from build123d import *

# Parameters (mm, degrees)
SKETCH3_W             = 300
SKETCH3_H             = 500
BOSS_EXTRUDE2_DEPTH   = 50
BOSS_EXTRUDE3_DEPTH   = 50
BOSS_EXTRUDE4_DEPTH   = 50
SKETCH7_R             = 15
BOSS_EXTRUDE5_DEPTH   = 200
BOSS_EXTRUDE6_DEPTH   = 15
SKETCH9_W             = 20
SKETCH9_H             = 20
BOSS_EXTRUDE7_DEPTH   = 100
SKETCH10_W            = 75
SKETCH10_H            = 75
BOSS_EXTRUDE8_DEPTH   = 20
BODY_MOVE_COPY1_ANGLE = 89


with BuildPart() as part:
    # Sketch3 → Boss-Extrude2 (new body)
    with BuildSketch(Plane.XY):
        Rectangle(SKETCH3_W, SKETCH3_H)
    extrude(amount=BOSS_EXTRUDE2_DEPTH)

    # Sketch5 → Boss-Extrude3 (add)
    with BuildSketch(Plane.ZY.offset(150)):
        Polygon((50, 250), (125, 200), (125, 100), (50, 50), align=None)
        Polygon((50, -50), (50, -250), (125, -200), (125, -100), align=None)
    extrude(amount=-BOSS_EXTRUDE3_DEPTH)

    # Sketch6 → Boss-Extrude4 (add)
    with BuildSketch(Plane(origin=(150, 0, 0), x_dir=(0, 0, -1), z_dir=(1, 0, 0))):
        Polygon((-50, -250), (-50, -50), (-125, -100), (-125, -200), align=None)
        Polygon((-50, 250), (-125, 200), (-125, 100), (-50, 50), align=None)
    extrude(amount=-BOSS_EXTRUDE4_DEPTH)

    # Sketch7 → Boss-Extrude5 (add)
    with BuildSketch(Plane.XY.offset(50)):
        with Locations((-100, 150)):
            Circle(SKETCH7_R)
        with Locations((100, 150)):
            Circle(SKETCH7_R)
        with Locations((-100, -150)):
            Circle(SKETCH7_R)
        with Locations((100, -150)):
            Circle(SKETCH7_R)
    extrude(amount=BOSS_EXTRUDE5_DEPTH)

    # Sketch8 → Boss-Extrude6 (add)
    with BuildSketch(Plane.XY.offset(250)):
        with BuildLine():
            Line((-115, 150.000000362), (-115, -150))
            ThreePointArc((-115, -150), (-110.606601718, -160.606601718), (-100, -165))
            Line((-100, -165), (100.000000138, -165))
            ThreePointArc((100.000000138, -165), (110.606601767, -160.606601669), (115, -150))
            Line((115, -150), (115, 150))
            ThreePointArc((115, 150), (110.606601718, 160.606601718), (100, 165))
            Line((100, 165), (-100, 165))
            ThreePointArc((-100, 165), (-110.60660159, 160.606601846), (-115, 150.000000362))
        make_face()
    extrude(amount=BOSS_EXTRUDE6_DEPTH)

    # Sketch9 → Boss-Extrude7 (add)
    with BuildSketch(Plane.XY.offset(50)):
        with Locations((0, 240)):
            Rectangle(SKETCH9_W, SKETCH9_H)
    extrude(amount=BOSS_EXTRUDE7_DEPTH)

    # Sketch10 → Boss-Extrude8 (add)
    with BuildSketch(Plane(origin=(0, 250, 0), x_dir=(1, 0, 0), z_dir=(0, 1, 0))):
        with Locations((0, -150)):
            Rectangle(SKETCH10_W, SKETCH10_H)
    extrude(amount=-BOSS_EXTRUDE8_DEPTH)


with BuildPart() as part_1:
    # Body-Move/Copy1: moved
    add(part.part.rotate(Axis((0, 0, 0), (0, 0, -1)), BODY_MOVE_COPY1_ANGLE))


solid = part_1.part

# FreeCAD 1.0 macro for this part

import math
import FreeCAD as App
import Part
import Sketcher

doc = App.newDocument("Part")
params = doc.addObject("Spreadsheet::Sheet", "Params")
for row, (alias, value) in enumerate([
    ("sketch1_width", "300 mm"),
    ("sketch1_height", "500 mm"),
    ("pad1_length", "50 mm"),
    ("sketch2_width", "200 mm"),
    ("sketch2_width2", "100 mm"),
    ("pad2_length", "50 mm"),
    ("sketch3_width", "200 mm"),
    ("sketch3_width2", "100 mm"),
    ("pad3_length", "50 mm"),
    ("sketch4_diameter", "30 mm"),
    ("pad4_length", "200 mm"),
    ("sketch5_radius", "15 mm"),
    ("sketch5_width", "200 mm"),
    ("sketch5_height", "300 mm"),
    ("pad5_length", "15 mm"),
    ("sketch6_width", "20 mm"),
    ("pad6_length", "100 mm"),
    ("sketch7_width", "75 mm"),
    ("pad7_length", "20 mm"),
], start=1):
    params.set(f"A{row}", alias)
    params.set(f"B{row}", "=" + value)
    params.setAlias(f"B{row}", alias)

body = doc.addObject("PartDesign::Body", "Body")

# Sketch on XY plane
sketch1 = body.newObject("Sketcher::SketchObject", "Sketch")
sketch1.AttachmentSupport = (doc.getObject("XY_Plane"), [""])
sketch1.MapMode = "FlatFace"
sketch1.addGeometry(Part.LineSegment(App.Vector(-150, 250, 0), App.Vector(-150, -250, 0)), False)
sketch1.addGeometry(Part.LineSegment(App.Vector(-150, -250, 0), App.Vector(150, -250, 0)), False)
sketch1.addGeometry(Part.LineSegment(App.Vector(150, -250, 0), App.Vector(150, 250, 0)), False)
sketch1.addGeometry(Part.LineSegment(App.Vector(150, 250, 0), App.Vector(-150, 250, 0)), False)
sketch1.addConstraint(Sketcher.Constraint("Coincident", 0, 2, 1, 1))
sketch1.addConstraint(Sketcher.Constraint("Coincident", 1, 2, 2, 1))
sketch1.addConstraint(Sketcher.Constraint("Coincident", 2, 2, 3, 1))
sketch1.addConstraint(Sketcher.Constraint("Coincident", 3, 2, 0, 1))
sketch1.addConstraint(Sketcher.Constraint("Vertical", 0))
sketch1.addConstraint(Sketcher.Constraint("Horizontal", 1))
sketch1.addConstraint(Sketcher.Constraint("Vertical", 2))
sketch1.addConstraint(Sketcher.Constraint("Horizontal", 3))
sketch1.addConstraint(Sketcher.Constraint("Symmetric", 0, 2, 2, 2, -1, 1))
sketch1.addConstraint(Sketcher.Constraint("DistanceX", 1, 1, 1, 2, 300.0))
sketch1.addConstraint(Sketcher.Constraint("DistanceY", 0, 2, 0, 1, 500.0))
sketch1.setExpression("Constraints[9]", "Params.sketch1_width")
sketch1.setExpression("Constraints[10]", "Params.sketch1_height")
pad1 = body.newObject("PartDesign::Pad", "Pad")
pad1.Profile = sketch1
pad1.setExpression("Length", "Params.pad1_length")

# Sketch on YZ plane
sketch2 = body.newObject("Sketcher::SketchObject", "Sketch001")
sketch2.AttachmentSupport = (doc.getObject("YZ_Plane"), [""])
sketch2.MapMode = "FlatFace"
sketch2.AttachmentOffset = App.Placement(App.Vector(0, 0, -150), App.Rotation())
sketch2.addGeometry(Part.LineSegment(App.Vector(200, 125, 0), App.Vector(250, 50, 0)), False)
sketch2.addGeometry(Part.LineSegment(App.Vector(250, 50, 0), App.Vector(50, 50, 0)), False)
sketch2.addGeometry(Part.LineSegment(App.Vector(50, 50, 0), App.Vector(100, 125, 0)), False)
sketch2.addGeometry(Part.LineSegment(App.Vector(100, 125, 0), App.Vector(200, 125, 0)), False)
sketch2.addGeometry(Part.LineSegment(App.Vector(-50, 50, 0), App.Vector(-250, 50, 0)), False)
sketch2.addGeometry(Part.LineSegment(App.Vector(-250, 50, 0), App.Vector(-200, 125, 0)), False)
sketch2.addGeometry(Part.LineSegment(App.Vector(-200, 125, 0), App.Vector(-100, 125, 0)), False)
sketch2.addGeometry(Part.LineSegment(App.Vector(-100, 125, 0), App.Vector(-50, 50, 0)), False)
sketch2.addConstraint(Sketcher.Constraint("Coincident", 0, 2, 1, 1))
sketch2.addConstraint(Sketcher.Constraint("Coincident", 1, 2, 2, 1))
sketch2.addConstraint(Sketcher.Constraint("Coincident", 2, 2, 3, 1))
sketch2.addConstraint(Sketcher.Constraint("Coincident", 3, 2, 0, 1))
sketch2.addConstraint(Sketcher.Constraint("Coincident", 4, 2, 5, 1))
sketch2.addConstraint(Sketcher.Constraint("Coincident", 5, 2, 6, 1))
sketch2.addConstraint(Sketcher.Constraint("Coincident", 6, 2, 7, 1))
sketch2.addConstraint(Sketcher.Constraint("Coincident", 7, 2, 4, 1))
sketch2.addConstraint(Sketcher.Constraint("Horizontal", 1))
sketch2.addConstraint(Sketcher.Constraint("Horizontal", 3))
sketch2.addConstraint(Sketcher.Constraint("Horizontal", 4))
sketch2.addConstraint(Sketcher.Constraint("Horizontal", 6))
sketch2.addConstraint(Sketcher.Constraint("Symmetric", 0, 2, 4, 2, -2))
sketch2.addConstraint(Sketcher.Constraint("Symmetric", 3, 2, 5, 2, -2))
sketch2.addConstraint(Sketcher.Constraint("Parallel", 2, 5))
sketch2.addConstraint(Sketcher.Constraint("Parallel", 0, 7))
sketch2.addConstraint(Sketcher.Constraint("Equal", 1, 4))
sketch2.addConstraint(Sketcher.Constraint("DistanceX", 1, 2, 1, 1, 200.0))
sketch2.addConstraint(Sketcher.Constraint("DistanceX", 3, 1, 3, 2, 100.0))
sketch2.addConstraint(Sketcher.Constraint("DistanceX", -1, 1, 0, 2, 250.0))
sketch2.addConstraint(Sketcher.Constraint("DistanceY", -1, 1, 0, 2, 50.0))
sketch2.addConstraint(Sketcher.Constraint("DistanceY", -1, 1, 2, 2, 125.0))
sketch2.setExpression("Constraints[17]", "Params.sketch2_width")
sketch2.setExpression("Constraints[18]", "Params.sketch2_width2")
pad2 = body.newObject("PartDesign::Pad", "Pad001")
pad2.Profile = sketch2
pad2.setExpression("Length", "Params.pad2_length")

# Sketch on YZ plane
sketch3 = body.newObject("Sketcher::SketchObject", "Sketch002")
sketch3.AttachmentSupport = (doc.getObject("YZ_Plane"), [""])
sketch3.MapMode = "FlatFace"
sketch3.AttachmentOffset = App.Placement(App.Vector(0, 0, 150), App.Rotation())
sketch3.addGeometry(Part.LineSegment(App.Vector(-250, 50, 0), App.Vector(-50, 50, 0)), False)
sketch3.addGeometry(Part.LineSegment(App.Vector(-50, 50, 0), App.Vector(-100, 125, 0)), False)
sketch3.addGeometry(Part.LineSegment(App.Vector(-100, 125, 0), App.Vector(-200, 125, 0)), False)
sketch3.addGeometry(Part.LineSegment(App.Vector(-200, 125, 0), App.Vector(-250, 50, 0)), False)
sketch3.addGeometry(Part.LineSegment(App.Vector(250, 50, 0), App.Vector(200, 125, 0)), False)
sketch3.addGeometry(Part.LineSegment(App.Vector(200, 125, 0), App.Vector(100, 125, 0)), False)
sketch3.addGeometry(Part.LineSegment(App.Vector(100, 125, 0), App.Vector(50, 50, 0)), False)
sketch3.addGeometry(Part.LineSegment(App.Vector(50, 50, 0), App.Vector(250, 50, 0)), False)
sketch3.addConstraint(Sketcher.Constraint("Coincident", 0, 2, 1, 1))
sketch3.addConstraint(Sketcher.Constraint("Coincident", 1, 2, 2, 1))
sketch3.addConstraint(Sketcher.Constraint("Coincident", 2, 2, 3, 1))
sketch3.addConstraint(Sketcher.Constraint("Coincident", 3, 2, 0, 1))
sketch3.addConstraint(Sketcher.Constraint("Coincident", 4, 2, 5, 1))
sketch3.addConstraint(Sketcher.Constraint("Coincident", 5, 2, 6, 1))
sketch3.addConstraint(Sketcher.Constraint("Coincident", 6, 2, 7, 1))
sketch3.addConstraint(Sketcher.Constraint("Coincident", 7, 2, 4, 1))
sketch3.addConstraint(Sketcher.Constraint("Horizontal", 0))
sketch3.addConstraint(Sketcher.Constraint("Horizontal", 2))
sketch3.addConstraint(Sketcher.Constraint("Horizontal", 5))
sketch3.addConstraint(Sketcher.Constraint("Horizontal", 7))
sketch3.addConstraint(Sketcher.Constraint("Symmetric", 2, 2, 4, 2, -2))
sketch3.addConstraint(Sketcher.Constraint("Symmetric", 0, 2, 6, 2, -2))
sketch3.addConstraint(Sketcher.Constraint("Parallel", 1, 4))
sketch3.addConstraint(Sketcher.Constraint("Parallel", 3, 6))
sketch3.addConstraint(Sketcher.Constraint("Equal", 2, 5))
sketch3.addConstraint(Sketcher.Constraint("DistanceX", 0, 1, 0, 2, 200.0))
sketch3.addConstraint(Sketcher.Constraint("DistanceX", 2, 2, 2, 1, 100.0))
sketch3.addConstraint(Sketcher.Constraint("DistanceX", 0, 2, -1, 1, 50.0))
sketch3.addConstraint(Sketcher.Constraint("DistanceY", -1, 1, 0, 2, 50.0))
sketch3.addConstraint(Sketcher.Constraint("DistanceY", -1, 1, 1, 2, 125.0))
sketch3.setExpression("Constraints[17]", "Params.sketch3_width")
sketch3.setExpression("Constraints[18]", "Params.sketch3_width2")
pad3 = body.newObject("PartDesign::Pad", "Pad002")
pad3.Profile = sketch3
pad3.setExpression("Length", "Params.pad3_length")
pad3.Reversed = True

# Sketch on XY plane
sketch4 = body.newObject("Sketcher::SketchObject", "Sketch003")
sketch4.AttachmentSupport = (doc.getObject("XY_Plane"), [""])
sketch4.MapMode = "FlatFace"
sketch4.AttachmentOffset = App.Placement(App.Vector(0, 0, 50), App.Rotation())
sketch4.addGeometry(Part.Circle(App.Vector(-100, 150, 0), App.Vector(0, 0, 1), 15), False)
sketch4.addGeometry(Part.Circle(App.Vector(100, 150, 0), App.Vector(0, 0, 1), 15), False)
sketch4.addGeometry(Part.Circle(App.Vector(-100, -150, 0), App.Vector(0, 0, 1), 15), False)
sketch4.addGeometry(Part.Circle(App.Vector(100, -150, 0), App.Vector(0, 0, 1), 15), False)
sketch4.addConstraint(Sketcher.Constraint("Equal", 0, 1))
sketch4.addConstraint(Sketcher.Constraint("Equal", 1, 2))
sketch4.addConstraint(Sketcher.Constraint("Equal", 2, 3))
sketch4.addConstraint(Sketcher.Constraint("Symmetric", 1, 3, 2, 3, -1, 1))
sketch4.addConstraint(Sketcher.Constraint("Symmetric", 0, 3, 3, 3, -1, 1))
sketch4.addConstraint(Sketcher.Constraint("Symmetric", 0, 3, 1, 3, -2))
sketch4.addConstraint(Sketcher.Constraint("Diameter", 0, 30.0))
sketch4.addConstraint(Sketcher.Constraint("DistanceX", 0, 3, -1, 1, 100.0))
sketch4.addConstraint(Sketcher.Constraint("DistanceY", -1, 1, 0, 3, 150.0))
sketch4.setExpression("Constraints[6]", "Params.sketch4_diameter")
pad4 = body.newObject("PartDesign::Pad", "Pad003")
pad4.Profile = sketch4
pad4.setExpression("Length", "Params.pad4_length")

# Sketch on XY plane
sketch5 = body.newObject("Sketcher::SketchObject", "Sketch004")
sketch5.AttachmentSupport = (doc.getObject("XY_Plane"), [""])
sketch5.MapMode = "FlatFace"
sketch5.AttachmentOffset = App.Placement(App.Vector(0, 0, 250), App.Rotation())
sketch5.addGeometry(Part.LineSegment(App.Vector(-115, 150, 0), App.Vector(-115, -150, 0)), False)
sketch5.addGeometry(Part.ArcOfCircle(Part.Circle(App.Vector(-100, -150, 0), App.Vector(0, 0, 1), 15), math.radians(180), math.radians(270)), False)
sketch5.addGeometry(Part.LineSegment(App.Vector(-100, -165, 0), App.Vector(100, -165, 0)), False)
sketch5.addGeometry(Part.ArcOfCircle(Part.Circle(App.Vector(100, -150, 0), App.Vector(0, 0, 1), 15), math.radians(-90), math.radians(0)), False)
sketch5.addGeometry(Part.LineSegment(App.Vector(115, -150, 0), App.Vector(115, 150, 0)), False)
sketch5.addGeometry(Part.ArcOfCircle(Part.Circle(App.Vector(100, 150, 0), App.Vector(0, 0, 1), 15), math.radians(0), math.radians(90)), False)
sketch5.addGeometry(Part.LineSegment(App.Vector(100, 165, 0), App.Vector(-100, 165, 0)), False)
sketch5.addGeometry(Part.ArcOfCircle(Part.Circle(App.Vector(-100, 150, 0), App.Vector(0, 0, 1), 15), math.radians(90), math.radians(180)), False)
sketch5.addConstraint(Sketcher.Constraint("Tangent", 0, 2, 1, 1))
sketch5.addConstraint(Sketcher.Constraint("Tangent", 1, 2, 2, 1))
sketch5.addConstraint(Sketcher.Constraint("Tangent", 2, 2, 3, 1))
sketch5.addConstraint(Sketcher.Constraint("Tangent", 3, 2, 4, 1))
sketch5.addConstraint(Sketcher.Constraint("Tangent", 4, 2, 5, 1))
sketch5.addConstraint(Sketcher.Constraint("Tangent", 5, 2, 6, 1))
sketch5.addConstraint(Sketcher.Constraint("Tangent", 6, 2, 7, 1))
sketch5.addConstraint(Sketcher.Constraint("Tangent", 7, 2, 0, 1))
sketch5.addConstraint(Sketcher.Constraint("Vertical", 0))
sketch5.addConstraint(Sketcher.Constraint("Horizontal", 2))
sketch5.addConstraint(Sketcher.Constraint("Vertical", 4))
sketch5.addConstraint(Sketcher.Constraint("Horizontal", 6))
sketch5.addConstraint(Sketcher.Constraint("Equal", 1, 3))
sketch5.addConstraint(Sketcher.Constraint("Equal", 3, 5))
sketch5.addConstraint(Sketcher.Constraint("Equal", 5, 7))
sketch5.addConstraint(Sketcher.Constraint("Symmetric", 1, 3, 5, 3, -1, 1))
sketch5.addConstraint(Sketcher.Constraint("Radius", 1, 15.0))
sketch5.addConstraint(Sketcher.Constraint("DistanceX", 2, 1, 2, 2, 200.0))
sketch5.addConstraint(Sketcher.Constraint("DistanceY", 0, 2, 0, 1, 300.0))
sketch5.setExpression("Constraints[16]", "Params.sketch5_radius")
sketch5.setExpression("Constraints[17]", "Params.sketch5_width")
sketch5.setExpression("Constraints[18]", "Params.sketch5_height")
pad5 = body.newObject("PartDesign::Pad", "Pad004")
pad5.Profile = sketch5
pad5.setExpression("Length", "Params.pad5_length")

# Sketch on XY plane
sketch6 = body.newObject("Sketcher::SketchObject", "Sketch005")
sketch6.AttachmentSupport = (doc.getObject("XY_Plane"), [""])
sketch6.MapMode = "FlatFace"
sketch6.AttachmentOffset = App.Placement(App.Vector(0, 0, 50), App.Rotation())
sketch6.addGeometry(Part.LineSegment(App.Vector(-10, 250, 0), App.Vector(-10, 230, 0)), False)
sketch6.addGeometry(Part.LineSegment(App.Vector(-10, 230, 0), App.Vector(10, 230, 0)), False)
sketch6.addGeometry(Part.LineSegment(App.Vector(10, 230, 0), App.Vector(10, 250, 0)), False)
sketch6.addGeometry(Part.LineSegment(App.Vector(10, 250, 0), App.Vector(-10, 250, 0)), False)
sketch6.addConstraint(Sketcher.Constraint("Coincident", 0, 2, 1, 1))
sketch6.addConstraint(Sketcher.Constraint("Coincident", 1, 2, 2, 1))
sketch6.addConstraint(Sketcher.Constraint("Coincident", 2, 2, 3, 1))
sketch6.addConstraint(Sketcher.Constraint("Coincident", 3, 2, 0, 1))
sketch6.addConstraint(Sketcher.Constraint("Vertical", 0))
sketch6.addConstraint(Sketcher.Constraint("Horizontal", 1))
sketch6.addConstraint(Sketcher.Constraint("Vertical", 2))
sketch6.addConstraint(Sketcher.Constraint("Horizontal", 3))
sketch6.addConstraint(Sketcher.Constraint("Equal", 3, 0))
sketch6.addConstraint(Sketcher.Constraint("DistanceX", 1, 1, 1, 2, 20.0))
sketch6.addConstraint(Sketcher.Constraint("DistanceX", 0, 2, -1, 1, 10.0))
sketch6.addConstraint(Sketcher.Constraint("DistanceY", -1, 1, 0, 2, 230.0))
sketch6.setExpression("Constraints[9]", "Params.sketch6_width")
pad6 = body.newObject("PartDesign::Pad", "Pad005")
pad6.Profile = sketch6
pad6.setExpression("Length", "Params.pad6_length")

# Sketch on XZ plane
sketch7 = body.newObject("Sketcher::SketchObject", "Sketch006")
sketch7.AttachmentSupport = (doc.getObject("XZ_Plane"), [""])
sketch7.MapMode = "FlatFace"
sketch7.AttachmentOffset = App.Placement(App.Vector(0, 0, -250), App.Rotation())
sketch7.addGeometry(Part.LineSegment(App.Vector(-38, 112, 0), App.Vector(-38, 188, 0)), False)
sketch7.addGeometry(Part.LineSegment(App.Vector(-38, 188, 0), App.Vector(38, 188, 0)), False)
sketch7.addGeometry(Part.LineSegment(App.Vector(38, 188, 0), App.Vector(38, 112, 0)), False)
sketch7.addGeometry(Part.LineSegment(App.Vector(38, 112, 0), App.Vector(-38, 112, 0)), False)
sketch7.addConstraint(Sketcher.Constraint("Coincident", 0, 2, 1, 1))
sketch7.addConstraint(Sketcher.Constraint("Coincident", 1, 2, 2, 1))
sketch7.addConstraint(Sketcher.Constraint("Coincident", 2, 2, 3, 1))
sketch7.addConstraint(Sketcher.Constraint("Coincident", 3, 2, 0, 1))
sketch7.addConstraint(Sketcher.Constraint("Vertical", 0))
sketch7.addConstraint(Sketcher.Constraint("Horizontal", 1))
sketch7.addConstraint(Sketcher.Constraint("Vertical", 2))
sketch7.addConstraint(Sketcher.Constraint("Horizontal", 3))
sketch7.addConstraint(Sketcher.Constraint("Equal", 3, 0))
sketch7.addConstraint(Sketcher.Constraint("DistanceX", 1, 1, 1, 2, 75.0))
sketch7.addConstraint(Sketcher.Constraint("DistanceX", 0, 2, -1, 1, 37.5))
sketch7.addConstraint(Sketcher.Constraint("DistanceY", -1, 1, 0, 2, 187.5))
sketch7.setExpression("Constraints[9]", "Params.sketch7_width")
pad7 = body.newObject("PartDesign::Pad", "Pad006")
pad7.Profile = sketch7
pad7.setExpression("Length", "Params.pad7_length")
body2 = doc.addObject("PartDesign::Body", "Body001")
doc.recompute()

body.Placement = App.Placement(App.Vector(0, 0, 0), App.Rotation(App.Vector(0, 0, -1), 89))
boolean = body2.newObject("PartDesign::Boolean", "Boolean")
boolean.Type = "Fuse"
boolean.addObjects([body])

doc.recompute()
